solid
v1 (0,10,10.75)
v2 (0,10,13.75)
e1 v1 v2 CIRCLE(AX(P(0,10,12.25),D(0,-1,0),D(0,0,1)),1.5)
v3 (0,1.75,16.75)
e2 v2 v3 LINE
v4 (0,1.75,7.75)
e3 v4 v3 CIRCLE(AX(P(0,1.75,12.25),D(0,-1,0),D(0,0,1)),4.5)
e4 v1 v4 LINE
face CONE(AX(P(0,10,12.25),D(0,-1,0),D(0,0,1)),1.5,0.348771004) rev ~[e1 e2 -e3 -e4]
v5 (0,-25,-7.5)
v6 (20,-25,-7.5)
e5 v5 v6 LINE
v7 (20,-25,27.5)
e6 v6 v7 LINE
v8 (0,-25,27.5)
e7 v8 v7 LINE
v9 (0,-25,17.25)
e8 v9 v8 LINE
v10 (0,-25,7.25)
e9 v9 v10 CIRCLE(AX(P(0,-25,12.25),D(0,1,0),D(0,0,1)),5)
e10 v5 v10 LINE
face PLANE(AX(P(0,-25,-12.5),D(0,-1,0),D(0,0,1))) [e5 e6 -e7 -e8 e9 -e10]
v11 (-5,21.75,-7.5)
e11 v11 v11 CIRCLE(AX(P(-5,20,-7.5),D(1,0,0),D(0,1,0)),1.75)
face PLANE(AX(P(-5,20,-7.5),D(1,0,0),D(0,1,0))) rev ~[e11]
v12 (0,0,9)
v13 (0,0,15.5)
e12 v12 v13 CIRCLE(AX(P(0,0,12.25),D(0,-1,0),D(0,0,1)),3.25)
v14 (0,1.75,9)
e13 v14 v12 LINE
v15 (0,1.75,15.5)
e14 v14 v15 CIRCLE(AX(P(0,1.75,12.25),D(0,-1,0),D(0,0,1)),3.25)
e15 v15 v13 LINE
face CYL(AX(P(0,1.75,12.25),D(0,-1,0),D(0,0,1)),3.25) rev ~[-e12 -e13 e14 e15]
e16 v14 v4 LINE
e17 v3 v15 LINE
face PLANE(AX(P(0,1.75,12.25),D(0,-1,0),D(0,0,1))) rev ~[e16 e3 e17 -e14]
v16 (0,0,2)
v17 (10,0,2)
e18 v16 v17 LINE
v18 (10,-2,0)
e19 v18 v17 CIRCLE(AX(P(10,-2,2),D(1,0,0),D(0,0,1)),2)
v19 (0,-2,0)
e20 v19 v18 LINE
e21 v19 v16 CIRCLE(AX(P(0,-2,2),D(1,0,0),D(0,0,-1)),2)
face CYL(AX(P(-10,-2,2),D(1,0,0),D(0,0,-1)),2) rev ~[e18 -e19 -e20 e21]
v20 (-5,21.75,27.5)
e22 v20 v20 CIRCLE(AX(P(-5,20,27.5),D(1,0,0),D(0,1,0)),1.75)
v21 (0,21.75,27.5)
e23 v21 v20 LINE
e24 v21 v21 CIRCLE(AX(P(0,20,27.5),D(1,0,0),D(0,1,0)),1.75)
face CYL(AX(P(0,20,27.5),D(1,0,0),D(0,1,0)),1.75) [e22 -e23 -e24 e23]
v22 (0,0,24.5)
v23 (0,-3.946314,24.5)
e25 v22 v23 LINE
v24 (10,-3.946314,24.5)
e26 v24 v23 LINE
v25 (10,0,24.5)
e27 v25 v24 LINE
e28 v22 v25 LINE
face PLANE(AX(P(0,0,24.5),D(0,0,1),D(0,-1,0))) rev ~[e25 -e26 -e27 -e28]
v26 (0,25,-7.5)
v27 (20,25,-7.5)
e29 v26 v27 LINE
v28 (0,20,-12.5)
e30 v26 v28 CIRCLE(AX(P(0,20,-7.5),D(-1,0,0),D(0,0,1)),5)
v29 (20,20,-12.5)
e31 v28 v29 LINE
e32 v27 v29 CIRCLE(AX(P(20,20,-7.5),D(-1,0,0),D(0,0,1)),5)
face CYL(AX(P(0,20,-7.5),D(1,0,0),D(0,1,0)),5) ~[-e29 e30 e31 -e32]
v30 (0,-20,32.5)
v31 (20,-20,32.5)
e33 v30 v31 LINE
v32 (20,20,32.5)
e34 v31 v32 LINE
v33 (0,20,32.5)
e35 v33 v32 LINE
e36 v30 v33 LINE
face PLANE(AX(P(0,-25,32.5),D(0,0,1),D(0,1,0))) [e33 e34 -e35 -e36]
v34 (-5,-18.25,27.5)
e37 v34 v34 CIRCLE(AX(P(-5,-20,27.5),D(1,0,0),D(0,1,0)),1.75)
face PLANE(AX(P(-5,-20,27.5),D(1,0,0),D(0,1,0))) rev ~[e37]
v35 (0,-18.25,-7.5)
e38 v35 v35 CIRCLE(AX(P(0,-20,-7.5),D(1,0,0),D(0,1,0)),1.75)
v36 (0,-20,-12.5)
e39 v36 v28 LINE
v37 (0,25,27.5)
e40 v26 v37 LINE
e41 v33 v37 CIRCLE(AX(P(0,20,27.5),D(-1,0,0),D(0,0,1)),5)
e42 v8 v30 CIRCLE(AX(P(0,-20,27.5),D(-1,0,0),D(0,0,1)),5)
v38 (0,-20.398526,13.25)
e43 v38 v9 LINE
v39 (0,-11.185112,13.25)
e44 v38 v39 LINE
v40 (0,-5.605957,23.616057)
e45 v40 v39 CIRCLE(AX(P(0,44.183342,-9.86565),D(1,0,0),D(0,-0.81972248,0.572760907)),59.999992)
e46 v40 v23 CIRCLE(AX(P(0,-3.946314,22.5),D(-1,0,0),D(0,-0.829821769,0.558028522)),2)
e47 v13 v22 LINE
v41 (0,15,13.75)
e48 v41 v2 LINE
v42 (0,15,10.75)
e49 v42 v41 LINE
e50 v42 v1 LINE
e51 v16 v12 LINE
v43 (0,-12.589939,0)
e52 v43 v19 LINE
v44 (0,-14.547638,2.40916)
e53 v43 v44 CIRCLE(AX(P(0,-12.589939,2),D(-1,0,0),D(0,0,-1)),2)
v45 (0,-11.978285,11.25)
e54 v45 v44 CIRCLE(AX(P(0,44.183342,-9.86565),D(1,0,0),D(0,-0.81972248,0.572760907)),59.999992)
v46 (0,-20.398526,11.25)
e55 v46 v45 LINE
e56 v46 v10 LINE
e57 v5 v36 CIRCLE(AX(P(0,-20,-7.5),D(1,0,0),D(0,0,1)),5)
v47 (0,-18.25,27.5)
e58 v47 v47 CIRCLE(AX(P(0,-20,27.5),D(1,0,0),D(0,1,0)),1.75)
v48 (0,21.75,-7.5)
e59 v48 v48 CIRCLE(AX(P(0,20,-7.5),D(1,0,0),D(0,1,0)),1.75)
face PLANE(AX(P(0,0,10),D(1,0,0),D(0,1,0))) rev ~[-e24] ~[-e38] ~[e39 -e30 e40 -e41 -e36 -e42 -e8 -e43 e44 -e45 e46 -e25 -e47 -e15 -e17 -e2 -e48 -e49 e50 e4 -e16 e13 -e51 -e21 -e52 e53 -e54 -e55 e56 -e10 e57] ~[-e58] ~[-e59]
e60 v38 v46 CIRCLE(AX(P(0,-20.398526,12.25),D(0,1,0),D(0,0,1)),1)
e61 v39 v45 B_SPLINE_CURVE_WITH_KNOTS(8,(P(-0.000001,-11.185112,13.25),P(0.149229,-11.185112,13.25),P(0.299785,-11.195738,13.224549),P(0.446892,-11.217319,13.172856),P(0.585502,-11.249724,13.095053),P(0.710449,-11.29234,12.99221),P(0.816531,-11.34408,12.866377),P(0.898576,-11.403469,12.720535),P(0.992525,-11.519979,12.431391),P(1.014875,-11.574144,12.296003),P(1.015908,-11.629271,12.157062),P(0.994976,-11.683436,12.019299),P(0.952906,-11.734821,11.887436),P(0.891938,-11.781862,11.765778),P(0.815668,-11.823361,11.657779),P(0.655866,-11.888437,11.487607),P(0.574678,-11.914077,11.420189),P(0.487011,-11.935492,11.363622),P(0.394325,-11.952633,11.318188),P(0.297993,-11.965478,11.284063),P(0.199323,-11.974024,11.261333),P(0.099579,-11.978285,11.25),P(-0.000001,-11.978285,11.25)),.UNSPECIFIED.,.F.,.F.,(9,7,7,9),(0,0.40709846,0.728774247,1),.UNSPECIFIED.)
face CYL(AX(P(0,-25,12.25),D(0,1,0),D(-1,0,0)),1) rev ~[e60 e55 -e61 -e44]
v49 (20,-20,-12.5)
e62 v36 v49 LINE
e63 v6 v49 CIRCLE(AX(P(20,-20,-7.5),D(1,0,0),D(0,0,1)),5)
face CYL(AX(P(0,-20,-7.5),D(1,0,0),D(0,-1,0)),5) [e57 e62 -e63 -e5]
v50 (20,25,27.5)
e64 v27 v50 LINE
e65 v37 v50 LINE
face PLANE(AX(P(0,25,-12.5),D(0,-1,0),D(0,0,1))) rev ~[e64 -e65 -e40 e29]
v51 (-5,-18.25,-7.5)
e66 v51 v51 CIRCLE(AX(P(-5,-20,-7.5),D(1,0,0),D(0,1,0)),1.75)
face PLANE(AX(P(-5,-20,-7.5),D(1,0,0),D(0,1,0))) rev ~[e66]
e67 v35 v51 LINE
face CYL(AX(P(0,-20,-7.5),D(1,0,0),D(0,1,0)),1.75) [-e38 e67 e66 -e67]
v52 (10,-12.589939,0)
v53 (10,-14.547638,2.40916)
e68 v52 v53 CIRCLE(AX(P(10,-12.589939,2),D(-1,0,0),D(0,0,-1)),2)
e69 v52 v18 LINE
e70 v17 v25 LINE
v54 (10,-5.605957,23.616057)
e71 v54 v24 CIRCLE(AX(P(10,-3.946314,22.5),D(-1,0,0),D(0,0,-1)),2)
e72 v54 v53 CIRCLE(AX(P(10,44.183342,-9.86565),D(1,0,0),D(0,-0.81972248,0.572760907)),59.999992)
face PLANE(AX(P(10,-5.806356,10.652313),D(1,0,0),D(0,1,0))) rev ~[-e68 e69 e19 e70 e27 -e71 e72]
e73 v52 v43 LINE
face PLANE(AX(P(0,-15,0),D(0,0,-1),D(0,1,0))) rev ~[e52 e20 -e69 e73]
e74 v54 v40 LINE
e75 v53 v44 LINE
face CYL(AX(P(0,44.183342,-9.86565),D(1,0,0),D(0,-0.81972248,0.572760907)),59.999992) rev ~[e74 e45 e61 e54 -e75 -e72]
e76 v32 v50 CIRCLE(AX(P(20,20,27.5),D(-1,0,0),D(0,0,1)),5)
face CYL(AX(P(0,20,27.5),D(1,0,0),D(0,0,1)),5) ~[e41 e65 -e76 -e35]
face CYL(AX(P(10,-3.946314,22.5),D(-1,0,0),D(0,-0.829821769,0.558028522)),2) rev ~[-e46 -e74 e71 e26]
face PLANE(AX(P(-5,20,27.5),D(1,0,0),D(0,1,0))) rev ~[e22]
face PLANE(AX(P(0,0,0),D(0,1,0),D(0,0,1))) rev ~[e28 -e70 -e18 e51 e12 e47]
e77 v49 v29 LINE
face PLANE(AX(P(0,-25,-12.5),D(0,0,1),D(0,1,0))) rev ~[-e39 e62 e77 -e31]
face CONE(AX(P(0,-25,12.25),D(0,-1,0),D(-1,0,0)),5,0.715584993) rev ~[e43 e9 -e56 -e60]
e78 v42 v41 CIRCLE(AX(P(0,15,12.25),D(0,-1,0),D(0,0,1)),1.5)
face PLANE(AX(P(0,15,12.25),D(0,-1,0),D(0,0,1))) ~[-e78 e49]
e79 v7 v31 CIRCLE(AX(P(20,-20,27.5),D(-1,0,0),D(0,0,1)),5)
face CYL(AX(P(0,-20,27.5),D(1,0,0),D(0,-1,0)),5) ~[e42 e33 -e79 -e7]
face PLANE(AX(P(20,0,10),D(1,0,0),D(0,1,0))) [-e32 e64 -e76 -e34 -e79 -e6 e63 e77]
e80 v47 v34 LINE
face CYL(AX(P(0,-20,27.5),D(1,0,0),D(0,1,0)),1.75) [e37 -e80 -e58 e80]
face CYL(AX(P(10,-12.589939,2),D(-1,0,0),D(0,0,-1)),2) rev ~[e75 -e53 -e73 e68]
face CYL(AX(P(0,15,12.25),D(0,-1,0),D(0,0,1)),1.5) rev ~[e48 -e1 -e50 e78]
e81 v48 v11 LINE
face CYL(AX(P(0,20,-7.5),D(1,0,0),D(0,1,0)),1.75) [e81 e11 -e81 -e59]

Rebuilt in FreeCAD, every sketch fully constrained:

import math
import FreeCAD as App
import Part
import Sketcher
Q = App.Units.Quantity


def edges_at(feature, points):
    """Names of the edges that pass closest to the given points."""
    edges = feature.Shape.Edges
    near = lambda p: min(range(len(edges)), key=lambda i: edges[i].distToShape(Part.Vertex(*p))[0])
    return sorted({f"Edge{near(p) + 1}" for p in points})


def add_polygon(sketch, points):
    """Adds a closed chain of lines whose ends are joined by coincident constraints."""
    first, n = sketch.GeometryCount, len(points)
    for a, b in zip(points, points[1:] + points[:1]):
        sketch.addGeometry(Part.LineSegment(App.Vector(*a, 0), App.Vector(*b, 0)), False)
    for i in range(n):
        sketch.addConstraint(Sketcher.Constraint("Coincident", first + i, 2, first + (i + 1) % n, 1))

doc = App.newDocument("Part")
body = doc.addObject("PartDesign::Body", "Body")

# Sketch on YZ plane
sketch1 = doc.addObject("Sketcher::SketchObject", "Sketch")
body.addObject(sketch1)
sketch1.AttachmentSupport = (doc.YZ_Plane, [""])
sketch1.MapMode = "FlatFace"
sketch1.addGeometry([
    Part.LineSegment(App.Vector(-15, 0, 0), App.Vector(0, 0, 0)),
    Part.LineSegment(App.Vector(0, 0, 0), App.Vector(0, 24, 0)),
    Part.LineSegment(App.Vector(0, 24, 0), App.Vector(-5, 24, 0)),
    Part.ArcOfCircle(Part.Circle(App.Vector(44, -10, 0), App.Vector(0, 0, 1), 60), math.radians(145), math.radians(171)),
], False)
sketch1.addConstraint([
    Sketcher.Constraint("Coincident", 0, 2, 1, 1),
    Sketcher.Constraint("Coincident", 1, 2, 2, 1),
    Sketcher.Constraint("Coincident", 2, 2, 3, 1),
    Sketcher.Constraint("Coincident", 3, 2, 0, 1),
    Sketcher.Constraint("Horizontal", 0),
    Sketcher.Constraint("Vertical", 1),
    Sketcher.Constraint("Horizontal", 2),
    Sketcher.Constraint("Coincident", 0, 2, -1, 1),
    Sketcher.Constraint("DistanceX", 0, 1, 0, 2, Q("15 mm")),
    Sketcher.Constraint("DistanceX", 2, 2, 2, 1, Q("5 mm")),
    Sketcher.Constraint("DistanceY", 1, 1, 1, 2, Q("24.5 mm")),
    Sketcher.Constraint("Radius", 3, Q("59.999992 mm")),
])
pad1 = doc.addObject("PartDesign::Pad", "Pad")
body.addObject(pad1)
pad1.Profile = sketch1
pad1.Length = 20
pad1.Midplane = True

# Sketch on YZ plane
sketch2 = doc.addObject("Sketcher::SketchObject", "Sketch001")
body.addObject(sketch2)
sketch2.AttachmentSupport = (doc.YZ_Plane, [""])
sketch2.MapMode = "FlatFace"
add_polygon(sketch2, [(0, 12.2), (15, 12.2), (15, 13.8), (10, 13.8), (1.8, 16.8), (1.8, 15.5), (0, 15.5)])  # lines 0-6
sketch2.addGeometry(Part.LineSegment(App.Vector(15, 12.2, 0), App.Vector(0, 12.2, 0)), True)  # axis
sketch2.addConstraint([
    Sketcher.Constraint("Horizontal", 0),
    Sketcher.Constraint("Vertical", 1),
    Sketcher.Constraint("Horizontal", 2),
    Sketcher.Constraint("Vertical", 4),
    Sketcher.Constraint("Horizontal", 5),
    Sketcher.Constraint("Vertical", 6),
    Sketcher.Constraint("Horizontal", 7),
    Sketcher.Constraint("Coincident", 7, 1, 0, 2),
    Sketcher.Constraint("PointOnObject", 5, 2, -2),
    Sketcher.Constraint("PointOnObject", 7, 2, -2),
    Sketcher.Constraint("DistanceX", 0, 1, 0, 2, Q("15 mm")),
    Sketcher.Constraint("DistanceX", 2, 2, 2, 1, Q("5 mm")),
    Sketcher.Constraint("DistanceY", 1, 1, 1, 2, Q("1.5 mm")),
    Sketcher.Constraint("DistanceY", 2, 2, 3, 2, Q("3 mm")),
    Sketcher.Constraint("DistanceX", 5, 2, 5, 1, Q("1.75 mm")),
    Sketcher.Constraint("DistanceY", 4, 2, 4, 1, Q("1.25 mm")),
    Sketcher.Constraint("DistanceY", -1, 1, 4, 2, Q("15.5 mm")),
])
revolution = doc.addObject("PartDesign::Revolution", "Revolution")
body.addObject(revolution)
revolution.Profile = sketch2
revolution.ReferenceAxis = (sketch2, ["Axis0"])
revolution.Angle = 360
doc.recompute()

fillet = doc.addObject("PartDesign::Fillet", "Fillet")
body.addObject(fillet)
fillet.Base = (revolution, edges_at(revolution, [(0, -5, 24.5), (0, -15, 0), (0, 0, 0)]))
fillet.Radius = 2
body2 = doc.addObject("PartDesign::Body", "Body001")

# Sketch on YZ plane
sketch3 = doc.addObject("Sketcher::SketchObject", "Sketch002")
body2.addObject(sketch3)
sketch3.AttachmentSupport = (doc.getObject("YZ_Plane001"), [""])
sketch3.MapMode = "FlatFace"
add_polygon(sketch3, [(-25, 32), (-25, -12), (25, -12), (25, 32)])  # lines 0-3
sketch3.addConstraint([
    Sketcher.Constraint("Vertical", 0),
    Sketcher.Constraint("Horizontal", 1),
    Sketcher.Constraint("Vertical", 2),
    Sketcher.Constraint("Horizontal", 3),
    Sketcher.Constraint("DistanceX", 1, 1, 1, 2, Q("50 mm")),
    Sketcher.Constraint("DistanceY", 0, 2, 0, 1, Q("45 mm")),
    Sketcher.Constraint("DistanceX", 0, 2, -1, 1, Q("25 mm")),
    Sketcher.Constraint("DistanceY", 0, 2, -1, 1, Q("12.5 mm")),
])
pad2 = doc.addObject("PartDesign::Pad", "Pad001")
body2.addObject(pad2)
pad2.Profile = sketch3
pad2.Length = 20
doc.recompute()

boolean = doc.addObject("PartDesign::Boolean", "Boolean")
body2.addObject(boolean)
boolean.Type = "Cut"
boolean.addObjects([body])

# Sketch on XZ plane
sketch4 = doc.addObject("Sketcher::SketchObject", "Sketch003")
body2.addObject(sketch4)
sketch4.AttachmentSupport = (doc.getObject("XZ_Plane001"), [""])
sketch4.MapMode = "FlatFace"
sketch4.AttachmentOffset = App.Placement(App.Vector(0, 0, 25), App.Rotation())
sketch4.addGeometry(Part.Circle(App.Vector(0, 12.2, 0), App.Vector(0, 0, 1), 1), False)
sketch4.addConstraint([
    Sketcher.Constraint("PointOnObject", 0, 3, -2),
    Sketcher.Constraint("Diameter", 0, Q("2 mm")),
    Sketcher.Constraint("DistanceY", -1, 1, 0, 3, Q("12.25 mm")),
])
doc.recompute()
hole = doc.addObject("PartDesign::Hole", "Hole")
body2.addObject(hole)
hole.Profile = sketch4
hole.ThreadType = "None"
hole.Diameter = 2
hole.DepthType = "Dimension"
hole.Depth = 20
hole.DrillPoint = "Flat"
hole.HoleCutType = "Countersink"
hole.HoleCutDiameter = 10
hole.HoleCutCountersinkAngle = 82
doc.recompute()

fillet2 = doc.addObject("PartDesign::Fillet", "Fillet001")
body2.addObject(fillet2)
fillet2.Base = (hole, edges_at(hole, [
    (10, -25, 32.5),
    (10, 25, 32.5),
    (10, -25, -12.5),
    (10, 25, -12.5),
]))
fillet2.Radius = 5

# Sketch on YZ plane
sketch5 = doc.addObject("Sketcher::SketchObject", "Sketch004")
body2.addObject(sketch5)
sketch5.AttachmentSupport = (doc.getObject("YZ_Plane001"), [""])
sketch5.MapMode = "FlatFace"
sketch5.addGeometry([
    Part.Circle(App.Vector(20, 27.5, 0), App.Vector(0, 0, 1), 1.8),
    Part.Circle(App.Vector(-20, 27.5, 0), App.Vector(0, 0, 1), 1.8),
    Part.Circle(App.Vector(-20, -7.5, 0), App.Vector(0, 0, 1), 1.8),
    Part.Circle(App.Vector(20, -7.5, 0), App.Vector(0, 0, 1), 1.8),
], False)
sketch5.addConstraint([
    Sketcher.Constraint("Equal", 0, 1),
    Sketcher.Constraint("Equal", 1, 2),
    Sketcher.Constraint("Equal", 2, 3),
    Sketcher.Constraint("Symmetric", 0, 3, 1, 3, -2),
    Sketcher.Constraint("Symmetric", 2, 3, 3, 3, -2),
    Sketcher.Constraint("Vertical", 1, 3, 2, 3),
    Sketcher.Constraint("Diameter", 0, Q("3.5 mm")),
    Sketcher.Constraint("DistanceX", -1, 1, 0, 3, Q("20 mm")),
    Sketcher.Constraint("DistanceY", 2, 3, 1, 3, Q("35 mm")),
    Sketcher.Constraint("DistanceY", -1, 1, 0, 3, Q("27.5 mm")),
])
pad3 = doc.addObject("PartDesign::Pad", "Pad002")
body2.addObject(pad3)
pad3.Profile = sketch5
pad3.Length = 5
pad3.Reversed = True

doc.recompute()
